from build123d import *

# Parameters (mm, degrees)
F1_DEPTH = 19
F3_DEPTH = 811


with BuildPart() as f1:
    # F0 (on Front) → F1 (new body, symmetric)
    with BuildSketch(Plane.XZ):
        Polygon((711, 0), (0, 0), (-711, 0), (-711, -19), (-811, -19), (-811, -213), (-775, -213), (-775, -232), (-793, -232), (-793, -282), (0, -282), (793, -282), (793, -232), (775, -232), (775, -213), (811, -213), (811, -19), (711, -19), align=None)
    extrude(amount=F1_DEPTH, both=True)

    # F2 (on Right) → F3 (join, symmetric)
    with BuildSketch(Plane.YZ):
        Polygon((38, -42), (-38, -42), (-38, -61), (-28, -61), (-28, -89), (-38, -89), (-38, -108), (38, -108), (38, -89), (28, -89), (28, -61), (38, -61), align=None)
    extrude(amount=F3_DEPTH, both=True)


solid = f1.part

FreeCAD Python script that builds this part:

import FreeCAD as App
import Part
import Sketcher
from FreeCAD import Vector

doc = App.newDocument("Part")
body = doc.addObject("PartDesign::Body", "Body")

# Sketch on XZ plane
sketch1 = body.newObject("Sketcher::SketchObject", "Sketch")
sketch1.AttachmentSupport = (doc.getObject("XZ_Plane"), [""])
sketch1.MapMode = "FlatFace"
sketch1.addGeometry(Part.LineSegment(Vector(711, 0, 0), Vector(-711, 0, 0)), False)
sketch1.addGeometry(Part.LineSegment(Vector(-711, 0, 0), Vector(-711, -19, 0)), False)
sketch1.addGeometry(Part.LineSegment(Vector(-711, -19, 0), Vector(-811, -19, 0)), False)
sketch1.addGeometry(Part.LineSegment(Vector(-811, -19, 0), Vector(-811, -213, 0)), False)
sketch1.addGeometry(Part.LineSegment(Vector(-811, -213, 0), Vector(-775, -213, 0)), False)
sketch1.addGeometry(Part.LineSegment(Vector(-775, -213, 0), Vector(-775, -232, 0)), False)
sketch1.addGeometry(Part.LineSegment(Vector(-775, -232, 0), Vector(-793, -232, 0)), False)
sketch1.addGeometry(Part.LineSegment(Vector(-793, -232, 0), Vector(-793, -282, 0)), False)
sketch1.addGeometry(Part.LineSegment(Vector(-793, -282, 0), Vector(793, -282, 0)), False)
sketch1.addGeometry(Part.LineSegment(Vector(793, -282, 0), Vector(793, -232, 0)), False)
sketch1.addGeometry(Part.LineSegment(Vector(793, -232, 0), Vector(775, -232, 0)), False)
sketch1.addGeometry(Part.LineSegment(Vector(775, -232, 0), Vector(775, -213, 0)), False)
sketch1.addGeometry(Part.LineSegment(Vector(775, -213, 0), Vector(811, -213, 0)), False)
sketch1.addGeometry(Part.LineSegment(Vector(811, -213, 0), Vector(811, -19, 0)), False)
sketch1.addGeometry(Part.LineSegment(Vector(811, -19, 0), Vector(711, -19, 0)), False)
sketch1.addGeometry(Part.LineSegment(Vector(711, -19, 0), Vector(711, 0, 0)), False)
sketch1.addConstraint(Sketcher.Constraint("Coincident", 0, 2, 1, 1))
sketch1.addConstraint(Sketcher.Constraint("Coincident", 1, 2, 2, 1))
sketch1.addConstraint(Sketcher.Constraint("Coincident", 2, 2, 3, 1))
sketch1.addConstraint(Sketcher.Constraint("Coincident", 3, 2, 4, 1))
sketch1.addConstraint(Sketcher.Constraint("Coincident", 4, 2, 5, 1))
sketch1.addConstraint(Sketcher.Constraint("Coincident", 5, 2, 6, 1))
sketch1.addConstraint(Sketcher.Constraint("Coincident", 6, 2, 7, 1))
sketch1.addConstraint(Sketcher.Constraint("Coincident", 7, 2, 8, 1))
sketch1.addConstraint(Sketcher.Constraint("Coincident", 8, 2, 9, 1))
sketch1.addConstraint(Sketcher.Constraint("Coincident", 9, 2, 10, 1))
sketch1.addConstraint(Sketcher.Constraint("Coincident", 10, 2, 11, 1))
sketch1.addConstraint(Sketcher.Constraint("Coincident", 11, 2, 12, 1))
sketch1.addConstraint(Sketcher.Constraint("Coincident", 12, 2, 13, 1))
sketch1.addConstraint(Sketcher.Constraint("Coincident", 13, 2, 14, 1))
sketch1.addConstraint(Sketcher.Constraint("Coincident", 14, 2, 15, 1))
sketch1.addConstraint(Sketcher.Constraint("Coincident", 15, 2, 0, 1))
sketch1.addConstraint(Sketcher.Constraint("Horizontal", 0))
sketch1.addConstraint(Sketcher.Constraint("Vertical", 1))
sketch1.addConstraint(Sketcher.Constraint("Horizontal", 2))
sketch1.addConstraint(Sketcher.Constraint("Vertical", 3))
sketch1.addConstraint(Sketcher.Constraint("Horizontal", 4))
sketch1.addConstraint(Sketcher.Constraint("Vertical", 5))
sketch1.addConstraint(Sketcher.Constraint("Horizontal", 6))
sketch1.addConstraint(Sketcher.Constraint("Vertical", 7))
sketch1.addConstraint(Sketcher.Constraint("Horizontal", 8))
sketch1.addConstraint(Sketcher.Constraint("Vertical", 9))
sketch1.addConstraint(Sketcher.Constraint("Horizontal", 10))
sketch1.addConstraint(Sketcher.Constraint("Vertical", 11))
sketch1.addConstraint(Sketcher.Constraint("Horizontal", 12))
sketch1.addConstraint(Sketcher.Constraint("Vertical", 13))
sketch1.addConstraint(Sketcher.Constraint("Horizontal", 14))
sketch1.addConstraint(Sketcher.Constraint("Vertical", 15))
sketch1.addConstraint(Sketcher.Constraint("Symmetric", 0, 2, 15, 2, -1, 1))
sketch1.addConstraint(Sketcher.Constraint("Symmetric", 6, 2, 9, 2, -2))
sketch1.addConstraint(Sketcher.Constraint("Symmetric", 4, 2, 11, 2, -2))
sketch1.addConstraint(Sketcher.Constraint("Symmetric", 2, 2, 13, 2, -2))
sketch1.addConstraint(Sketcher.Constraint("Equal", 1, 5))
sketch1.addConstraint(Sketcher.Constraint("DistanceX", 0, 2, 0, 1, 1422.0))
sketch1.addConstraint(Sketcher.Constraint("DistanceX", 2, 2, 2, 1, 100.0))
sketch1.addConstraint(Sketcher.Constraint("DistanceX", 4, 1, 4, 2, 36.0))
sketch1.addConstraint(Sketcher.Constraint("DistanceX", 6, 2, 6, 1, 18.0))
sketch1.addConstraint(Sketcher.Constraint("DistanceY", 1, 2, 1, 1, 19.0))
sketch1.addConstraint(Sketcher.Constraint("DistanceY", 3, 2, 3, 1, 194.0))
sketch1.addConstraint(Sketcher.Constraint("DistanceY", 7, 2, 7, 1, 50.0))
pad1 = body.newObject("PartDesign::Pad", "Pad")
pad1.Profile = sketch1
pad1.Length = 38
pad1.Midplane = True

# Sketch on YZ plane
sketch2 = body.newObject("Sketcher::SketchObject", "Sketch001")
sketch2.AttachmentSupport = (doc.getObject("YZ_Plane"), [""])
sketch2.MapMode = "FlatFace"
sketch2.addGeometry(Part.LineSegment(Vector(38, -42, 0), Vector(-38, -42, 0)), False)
sketch2.addGeometry(Part.LineSegment(Vector(-38, -42, 0), Vector(-38, -61, 0)), False)
sketch2.addGeometry(Part.LineSegment(Vector(-38, -61, 0), Vector(-28, -61, 0)), False)
sketch2.addGeometry(Part.LineSegment(Vector(-28, -61, 0), Vector(-28, -89, 0)), False)
sketch2.addGeometry(Part.LineSegment(Vector(-28, -89, 0), Vector(-38, -89, 0)), False)
sketch2.addGeometry(Part.LineSegment(Vector(-38, -89, 0), Vector(-38, -108, 0)), False)
sketch2.addGeometry(Part.LineSegment(Vector(-38, -108, 0), Vector(38, -108, 0)), False)
sketch2.addGeometry(Part.LineSegment(Vector(38, -108, 0), Vector(38, -89, 0)), False)
sketch2.addGeometry(Part.LineSegment(Vector(38, -89, 0), Vector(28, -89, 0)), False)
sketch2.addGeometry(Part.LineSegment(Vector(28, -89, 0), Vector(28, -61, 0)), False)
sketch2.addGeometry(Part.LineSegment(Vector(28, -61, 0), Vector(38, -61, 0)), False)
sketch2.addGeometry(Part.LineSegment(Vector(38, -61, 0), Vector(38, -42, 0)), False)
sketch2.addConstraint(Sketcher.Constraint("Coincident", 0, 2, 1, 1))
sketch2.addConstraint(Sketcher.Constraint("Coincident", 1, 2, 2, 1))
sketch2.addConstraint(Sketcher.Constraint("Coincident", 2, 2, 3, 1))
sketch2.addConstraint(Sketcher.Constraint("Coincident", 3, 2, 4, 1))
sketch2.addConstraint(Sketcher.Constraint("Coincident", 4, 2, 5, 1))
sketch2.addConstraint(Sketcher.Constraint("Coincident", 5, 2, 6, 1))
sketch2.addConstraint(Sketcher.Constraint("Coincident", 6, 2, 7, 1))
sketch2.addConstraint(Sketcher.Constraint("Coincident", 7, 2, 8, 1))
sketch2.addConstraint(Sketcher.Constraint("Coincident", 8, 2, 9, 1))
sketch2.addConstraint(Sketcher.Constraint("Coincident", 9, 2, 10, 1))
sketch2.addConstraint(Sketcher.Constraint("Coincident", 10, 2, 11, 1))
sketch2.addConstraint(Sketcher.Constraint("Coincident", 11, 2, 0, 1))
sketch2.addConstraint(Sketcher.Constraint("Horizontal", 0))
sketch2.addConstraint(Sketcher.Constraint("Vertical", 1))
sketch2.addConstraint(Sketcher.Constraint("Horizontal", 2))
sketch2.addConstraint(Sketcher.Constraint("Vertical", 3))
sketch2.addConstraint(Sketcher.Constraint("Horizontal", 4))
sketch2.addConstraint(Sketcher.Constraint("Vertical", 5))
sketch2.addConstraint(Sketcher.Constraint("Horizontal", 6))
sketch2.addConstraint(Sketcher.Constraint("Vertical", 7))
sketch2.addConstraint(Sketcher.Constraint("Horizontal", 8))
sketch2.addConstraint(Sketcher.Constraint("Vertical", 9))
sketch2.addConstraint(Sketcher.Constraint("Horizontal", 10))
sketch2.addConstraint(Sketcher.Constraint("Vertical", 11))
sketch2.addConstraint(Sketcher.Constraint("Symmetric", 4, 2, 7, 2, -2))
sketch2.addConstraint(Sketcher.Constraint("Symmetric", 2, 2, 9, 2, -2))
sketch2.addConstraint(Sketcher.Constraint("Vertical", 1, 2, 4, 2))
sketch2.addConstraint(Sketcher.Constraint("Vertical", 7, 2, 10, 2))
sketch2.addConstraint(Sketcher.Constraint("Equal", 1, 5))
sketch2.addConstraint(Sketcher.Constraint("DistanceX", 0, 2, 0, 1, 76.0))
sketch2.addConstraint(Sketcher.Constraint("DistanceX", 2, 1, 2, 2, 10.0))
sketch2.addConstraint(Sketcher.Constraint("DistanceY", 1, 2, 1, 1, 19.0))
sketch2.addConstraint(Sketcher.Constraint("DistanceY", 3, 2, 3, 1, 28.0))
sketch2.addConstraint(Sketcher.Constraint("DistanceY", 0, 2, -1, 1, 42.0))
pad2 = body.newObject("PartDesign::Pad", "Pad001")
pad2.Profile = sketch2
pad2.Length = 1622
pad2.Midplane = True

doc.recompute()
